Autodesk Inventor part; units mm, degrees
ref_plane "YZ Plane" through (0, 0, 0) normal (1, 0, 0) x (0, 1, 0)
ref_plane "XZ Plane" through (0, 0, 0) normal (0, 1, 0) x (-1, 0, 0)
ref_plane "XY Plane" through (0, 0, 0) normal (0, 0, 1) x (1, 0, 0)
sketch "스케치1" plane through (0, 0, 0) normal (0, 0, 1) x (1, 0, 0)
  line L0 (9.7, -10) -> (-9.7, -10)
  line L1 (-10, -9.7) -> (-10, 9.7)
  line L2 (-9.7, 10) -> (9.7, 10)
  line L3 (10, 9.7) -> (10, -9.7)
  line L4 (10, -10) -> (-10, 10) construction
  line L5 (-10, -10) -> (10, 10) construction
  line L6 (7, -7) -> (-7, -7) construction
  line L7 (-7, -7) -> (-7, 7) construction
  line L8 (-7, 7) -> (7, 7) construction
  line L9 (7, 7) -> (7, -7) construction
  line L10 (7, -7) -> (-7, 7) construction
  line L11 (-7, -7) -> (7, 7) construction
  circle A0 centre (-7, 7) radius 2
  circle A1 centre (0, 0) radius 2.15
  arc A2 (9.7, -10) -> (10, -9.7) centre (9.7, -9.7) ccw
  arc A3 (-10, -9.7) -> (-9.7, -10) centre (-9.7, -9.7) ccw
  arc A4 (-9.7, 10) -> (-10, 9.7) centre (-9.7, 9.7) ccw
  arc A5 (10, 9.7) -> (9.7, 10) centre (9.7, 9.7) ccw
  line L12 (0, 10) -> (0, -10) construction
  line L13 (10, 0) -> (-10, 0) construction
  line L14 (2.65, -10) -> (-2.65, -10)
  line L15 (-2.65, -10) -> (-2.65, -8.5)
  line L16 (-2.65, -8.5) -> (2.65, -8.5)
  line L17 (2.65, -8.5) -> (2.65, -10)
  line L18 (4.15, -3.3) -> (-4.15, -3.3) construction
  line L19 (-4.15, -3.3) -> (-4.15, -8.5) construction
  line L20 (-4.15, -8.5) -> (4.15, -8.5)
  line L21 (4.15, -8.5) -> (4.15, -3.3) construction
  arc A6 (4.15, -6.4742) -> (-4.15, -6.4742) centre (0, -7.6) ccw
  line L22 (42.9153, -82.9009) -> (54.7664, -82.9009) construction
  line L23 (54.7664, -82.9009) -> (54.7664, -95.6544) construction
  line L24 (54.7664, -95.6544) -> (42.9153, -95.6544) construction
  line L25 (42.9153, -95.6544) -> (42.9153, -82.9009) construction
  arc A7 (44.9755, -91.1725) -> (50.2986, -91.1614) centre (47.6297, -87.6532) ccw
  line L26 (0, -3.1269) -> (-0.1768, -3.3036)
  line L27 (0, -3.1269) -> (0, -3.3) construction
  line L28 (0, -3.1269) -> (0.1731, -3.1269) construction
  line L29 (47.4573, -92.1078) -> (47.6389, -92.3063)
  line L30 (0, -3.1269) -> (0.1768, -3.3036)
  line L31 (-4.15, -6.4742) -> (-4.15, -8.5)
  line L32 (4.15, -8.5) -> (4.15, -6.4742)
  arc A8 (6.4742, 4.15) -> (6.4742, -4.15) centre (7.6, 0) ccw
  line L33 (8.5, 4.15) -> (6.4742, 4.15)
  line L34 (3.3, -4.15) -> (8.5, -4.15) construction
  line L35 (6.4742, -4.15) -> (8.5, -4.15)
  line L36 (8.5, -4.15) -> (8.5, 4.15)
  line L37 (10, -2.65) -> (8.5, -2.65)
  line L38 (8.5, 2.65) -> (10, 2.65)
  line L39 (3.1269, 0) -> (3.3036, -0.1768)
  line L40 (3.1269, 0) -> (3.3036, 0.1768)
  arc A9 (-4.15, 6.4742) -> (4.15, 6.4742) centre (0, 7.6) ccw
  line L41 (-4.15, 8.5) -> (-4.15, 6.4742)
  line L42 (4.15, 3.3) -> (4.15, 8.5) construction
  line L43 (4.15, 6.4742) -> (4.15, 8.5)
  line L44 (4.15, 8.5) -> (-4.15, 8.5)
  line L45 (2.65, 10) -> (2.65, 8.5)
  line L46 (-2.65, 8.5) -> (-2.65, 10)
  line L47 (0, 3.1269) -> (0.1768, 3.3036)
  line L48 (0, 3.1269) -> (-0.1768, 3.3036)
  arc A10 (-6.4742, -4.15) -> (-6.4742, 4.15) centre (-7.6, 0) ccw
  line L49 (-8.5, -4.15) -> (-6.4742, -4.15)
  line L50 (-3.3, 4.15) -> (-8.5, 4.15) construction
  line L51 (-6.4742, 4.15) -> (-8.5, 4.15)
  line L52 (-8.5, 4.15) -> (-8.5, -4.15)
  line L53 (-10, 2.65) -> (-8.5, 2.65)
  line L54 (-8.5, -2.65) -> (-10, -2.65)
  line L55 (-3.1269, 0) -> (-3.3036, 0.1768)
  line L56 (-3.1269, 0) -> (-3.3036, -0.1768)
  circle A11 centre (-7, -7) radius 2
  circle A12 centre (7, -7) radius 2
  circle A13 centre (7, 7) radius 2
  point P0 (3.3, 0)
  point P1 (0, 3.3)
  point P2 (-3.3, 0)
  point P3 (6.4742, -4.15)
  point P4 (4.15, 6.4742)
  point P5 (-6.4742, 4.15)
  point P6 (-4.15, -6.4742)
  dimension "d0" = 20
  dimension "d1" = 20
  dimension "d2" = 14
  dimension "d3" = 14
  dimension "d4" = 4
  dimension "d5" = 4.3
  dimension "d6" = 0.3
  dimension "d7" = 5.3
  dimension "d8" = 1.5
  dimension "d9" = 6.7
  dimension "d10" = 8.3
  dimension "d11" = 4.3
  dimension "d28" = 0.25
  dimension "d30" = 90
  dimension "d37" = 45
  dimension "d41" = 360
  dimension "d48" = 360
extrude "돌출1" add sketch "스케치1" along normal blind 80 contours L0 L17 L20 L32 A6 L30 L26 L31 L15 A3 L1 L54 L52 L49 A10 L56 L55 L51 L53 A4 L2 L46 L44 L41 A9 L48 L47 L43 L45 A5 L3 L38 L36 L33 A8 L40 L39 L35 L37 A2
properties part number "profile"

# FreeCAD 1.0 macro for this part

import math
import FreeCAD as App
import Part
import Sketcher
from FreeCAD import Vector
Q = App.Units.Quantity

doc = App.newDocument("Part")
params = doc.addObject("Spreadsheet::Sheet", "Params")
for row, (alias, value) in enumerate([
    ("sketch1_diameter", "4 mm"),
    ("sketch1_diameter2", "4.3 mm"),
    ("sketch1_radius", "0.3 mm"),
    ("sketch1_radius2", "4.3 mm"),
    ("sketch1_width", "1.5 mm"),
    ("pad1_length", "80 mm"),
], start=1):
    params.set(f"A{row}", alias)
    params.set(f"B{row}", "=" + value)
    params.setAlias(f"B{row}", alias)

body = doc.addObject("PartDesign::Body", "Body")

sketch1 = doc.addObject("Sketcher::SketchObject", "Sketch")
body.addObject(sketch1)
sketch1.AttachmentSupport = (doc.XY_Plane, [""])
sketch1.MapMode = "FlatFace"
sketch1.addGeometry([
    Part.LineSegment(Vector(2.65, -10, 0), Vector(9.7, -10, 0)),
    Part.ArcOfCircle(Part.Circle(Vector(9.7, -9.7, 0), Vector(0, 0, 1), 0.3), math.radians(-90), math.radians(0)),
    Part.LineSegment(Vector(10, -9.7, 0), Vector(10, -2.65, 0)),
    Part.LineSegment(Vector(10, -2.65, 0), Vector(8.5, -2.65, 0)),
    Part.LineSegment(Vector(8.5, -2.65, 0), Vector(8.5, -4.15, 0)),
    Part.LineSegment(Vector(8.5, -4.15, 0), Vector(6.47, -4.15, 0)),
    Part.ArcOfCircle(Part.Circle(Vector(7.6, 0, 0), Vector(0, 0, 1), 4.3), math.radians(-178), math.radians(-105)),
    Part.LineSegment(Vector(3.3, -0.18, 0), Vector(3.13, 0, 0)),
    Part.LineSegment(Vector(3.13, 0, 0), Vector(3.3, 0.18, 0)),
    Part.ArcOfCircle(Part.Circle(Vector(7.6, 0, 0), Vector(0, 0, 1), 4.3), math.radians(105), math.radians(178)),
    Part.LineSegment(Vector(6.47, 4.15, 0), Vector(8.5, 4.15, 0)),
    Part.LineSegment(Vector(8.5, 4.15, 0), Vector(8.5, 2.65, 0)),
    Part.LineSegment(Vector(8.5, 2.65, 0), Vector(10, 2.65, 0)),
    Part.LineSegment(Vector(10, 2.65, 0), Vector(10, 9.7, 0)),
    Part.ArcOfCircle(Part.Circle(Vector(9.7, 9.7, 0), Vector(0, 0, 1), 0.3), math.radians(0), math.radians(90)),
    Part.LineSegment(Vector(9.7, 10, 0), Vector(2.65, 10, 0)),
    Part.LineSegment(Vector(2.65, 10, 0), Vector(2.65, 8.5, 0)),
    Part.LineSegment(Vector(2.65, 8.5, 0), Vector(4.15, 8.5, 0)),
    Part.LineSegment(Vector(4.15, 8.5, 0), Vector(4.15, 6.47, 0)),
    Part.ArcOfCircle(Part.Circle(Vector(0, 7.6, 0), Vector(0, 0, 1), 4.3), math.radians(-88), math.radians(-15)),
    Part.LineSegment(Vector(0.18, 3.3, 0), Vector(0, 3.13, 0)),
    Part.LineSegment(Vector(0, 3.13, 0), Vector(-0.18, 3.3, 0)),
    Part.ArcOfCircle(Part.Circle(Vector(0, 7.6, 0), Vector(0, 0, 1), 4.3), math.radians(-165), math.radians(-92)),
    Part.LineSegment(Vector(-4.15, 6.47, 0), Vector(-4.15, 8.5, 0)),
    Part.LineSegment(Vector(-4.15, 8.5, 0), Vector(-2.65, 8.5, 0)),
    Part.LineSegment(Vector(-2.65, 8.5, 0), Vector(-2.65, 10, 0)),
    Part.LineSegment(Vector(-2.65, 10, 0), Vector(-9.7, 10, 0)),
    Part.ArcOfCircle(Part.Circle(Vector(-9.7, 9.7, 0), Vector(0, 0, 1), 0.3), math.radians(90), math.radians(180)),
    Part.LineSegment(Vector(-10, 9.7, 0), Vector(-10, 2.65, 0)),
    Part.LineSegment(Vector(-10, 2.65, 0), Vector(-8.5, 2.65, 0)),
    Part.LineSegment(Vector(-8.5, 2.65, 0), Vector(-8.5, 4.15, 0)),
    Part.LineSegment(Vector(-8.5, 4.15, 0), Vector(-6.47, 4.15, 0)),
    Part.ArcOfCircle(Part.Circle(Vector(-7.6, 0, 0), Vector(0, 0, 1), 4.3), math.radians(2), math.radians(75)),
    Part.LineSegment(Vector(-3.3, 0.18, 0), Vector(-3.13, 0, 0)),
    Part.LineSegment(Vector(-3.13, 0, 0), Vector(-3.3, -0.18, 0)),
    Part.ArcOfCircle(Part.Circle(Vector(-7.6, 0, 0), Vector(0, 0, 1), 4.3), math.radians(-75), math.radians(-2)),
    Part.LineSegment(Vector(-6.47, -4.15, 0), Vector(-8.5, -4.15, 0)),
    Part.LineSegment(Vector(-8.5, -4.15, 0), Vector(-8.5, -2.65, 0)),
    Part.LineSegment(Vector(-8.5, -2.65, 0), Vector(-10, -2.65, 0)),
    Part.LineSegment(Vector(-10, -2.65, 0), Vector(-10, -9.7, 0)),
    Part.ArcOfCircle(Part.Circle(Vector(-9.7, -9.7, 0), Vector(0, 0, 1), 0.3), math.radians(180), math.radians(270)),
    Part.LineSegment(Vector(-9.7, -10, 0), Vector(-2.65, -10, 0)),
    Part.LineSegment(Vector(-2.65, -10, 0), Vector(-2.65, -8.5, 0)),
    Part.LineSegment(Vector(-2.65, -8.5, 0), Vector(-4.15, -8.5, 0)),
    Part.LineSegment(Vector(-4.15, -8.5, 0), Vector(-4.15, -6.47, 0)),
    Part.ArcOfCircle(Part.Circle(Vector(0, -7.6, 0), Vector(0, 0, 1), 4.3), math.radians(92), math.radians(165)),
    Part.LineSegment(Vector(-0.18, -3.3, 0), Vector(0, -3.13, 0)),
    Part.LineSegment(Vector(0, -3.13, 0), Vector(0.18, -3.3, 0)),
    Part.ArcOfCircle(Part.Circle(Vector(0, -7.6, 0), Vector(0, 0, 1), 4.3), math.radians(15), math.radians(88)),
    Part.LineSegment(Vector(4.15, -6.47, 0), Vector(4.15, -8.5, 0)),
    Part.LineSegment(Vector(4.15, -8.5, 0), Vector(2.65, -8.5, 0)),
    Part.LineSegment(Vector(2.65, -8.5, 0), Vector(2.65, -10, 0)),
    Part.Circle(Vector(-7, -7, 0), Vector(0, 0, 1), 2),
    Part.Circle(Vector(7, -7, 0), Vector(0, 0, 1), 2),
    Part.Circle(Vector(-7, 7, 0), Vector(0, 0, 1), 2),
    Part.Circle(Vector(0, 0, 0), Vector(0, 0, 1), 2.15),
    Part.Circle(Vector(7, 7, 0), Vector(0, 0, 1), 2),
], False)
sketch1.addConstraint([
    Sketcher.Constraint("Tangent", 0, 2, 1, 1),
    Sketcher.Constraint("Tangent", 1, 2, 2, 1),
    Sketcher.Constraint("Coincident", 2, 2, 3, 1),
    Sketcher.Constraint("Coincident", 3, 2, 4, 1),
    Sketcher.Constraint("Coincident", 4, 2, 5, 1),
    Sketcher.Constraint("Coincident", 5, 2, 6, 2),
    Sketcher.Constraint("Coincident", 6, 1, 7, 1),
    Sketcher.Constraint("Coincident", 7, 2, 8, 1),
    Sketcher.Constraint("Coincident", 8, 2, 9, 2),
    Sketcher.Constraint("Coincident", 9, 1, 10, 1),
    Sketcher.Constraint("Coincident", 10, 2, 11, 1),
    Sketcher.Constraint("Coincident", 11, 2, 12, 1),
    Sketcher.Constraint("Coincident", 12, 2, 13, 1),
    Sketcher.Constraint("Tangent", 13, 2, 14, 1),
    Sketcher.Constraint("Tangent", 14, 2, 15, 1),
    Sketcher.Constraint("Coincident", 15, 2, 16, 1),
    Sketcher.Constraint("Coincident", 16, 2, 17, 1),
    Sketcher.Constraint("Coincident", 17, 2, 18, 1),
    Sketcher.Constraint("Coincident", 18, 2, 19, 2),
    Sketcher.Constraint("Coincident", 19, 1, 20, 1),
    Sketcher.Constraint("Coincident", 20, 2, 21, 1),
    Sketcher.Constraint("Coincident", 21, 2, 22, 2),
    Sketcher.Constraint("Coincident", 22, 1, 23, 1),
    Sketcher.Constraint("Coincident", 23, 2, 24, 1),
    Sketcher.Constraint("Coincident", 24, 2, 25, 1),
    Sketcher.Constraint("Coincident", 25, 2, 26, 1),
    Sketcher.Constraint("Tangent", 26, 2, 27, 1),
    Sketcher.Constraint("Tangent", 27, 2, 28, 1),
    Sketcher.Constraint("Coincident", 28, 2, 29, 1),
    Sketcher.Constraint("Coincident", 29, 2, 30, 1),
    Sketcher.Constraint("Coincident", 30, 2, 31, 1),
    Sketcher.Constraint("Coincident", 31, 2, 32, 2),
    Sketcher.Constraint("Coincident", 32, 1, 33, 1),
    Sketcher.Constraint("Coincident", 33, 2, 34, 1),
    Sketcher.Constraint("Coincident", 34, 2, 35, 2),
    Sketcher.Constraint("Coincident", 35, 1, 36, 1),
    Sketcher.Constraint("Coincident", 36, 2, 37, 1),
    Sketcher.Constraint("Coincident", 37, 2, 38, 1),
    Sketcher.Constraint("Coincident", 38, 2, 39, 1),
    Sketcher.Constraint("Tangent", 39, 2, 40, 1),
    Sketcher.Constraint("Tangent", 40, 2, 41, 1),
    Sketcher.Constraint("Coincident", 41, 2, 42, 1),
    Sketcher.Constraint("Coincident", 42, 2, 43, 1),
    Sketcher.Constraint("Coincident", 43, 2, 44, 1),
    Sketcher.Constraint("Coincident", 44, 2, 45, 2),
    Sketcher.Constraint("Coincident", 45, 1, 46, 1),
    Sketcher.Constraint("Coincident", 46, 2, 47, 1),
    Sketcher.Constraint("Coincident", 47, 2, 48, 2),
    Sketcher.Constraint("Coincident", 48, 1, 49, 1),
    Sketcher.Constraint("Coincident", 49, 2, 50, 1),
    Sketcher.Constraint("Coincident", 50, 2, 51, 1),
    Sketcher.Constraint("Coincident", 51, 2, 0, 1),
    Sketcher.Constraint("Horizontal", 0),
    Sketcher.Constraint("Vertical", 2),
    Sketcher.Constraint("Horizontal", 3),
    Sketcher.Constraint("Vertical", 4),
    Sketcher.Constraint("Horizontal", 5),
    Sketcher.Constraint("Horizontal", 10),
    Sketcher.Constraint("Vertical", 11),
    Sketcher.Constraint("Horizontal", 12),
    Sketcher.Constraint("Vertical", 13),
    Sketcher.Constraint("Horizontal", 15),
    Sketcher.Constraint("Vertical", 16),
    Sketcher.Constraint("Horizontal", 17),
    Sketcher.Constraint("Vertical", 18),
    Sketcher.Constraint("Vertical", 23),
    Sketcher.Constraint("Horizontal", 24),
    Sketcher.Constraint("Vertical", 25),
    Sketcher.Constraint("Horizontal", 26),
    Sketcher.Constraint("Vertical", 28),
    Sketcher.Constraint("Horizontal", 29),
    Sketcher.Constraint("Vertical", 30),
    Sketcher.Constraint("Horizontal", 31),
    Sketcher.Constraint("Horizontal", 36),
    Sketcher.Constraint("Vertical", 37),
    Sketcher.Constraint("Horizontal", 38),
    Sketcher.Constraint("Vertical", 39),
    Sketcher.Constraint("Horizontal", 41),
    Sketcher.Constraint("Vertical", 42),
    Sketcher.Constraint("Horizontal", 43),
    Sketcher.Constraint("Vertical", 44),
    Sketcher.Constraint("Vertical", 49),
    Sketcher.Constraint("Horizontal", 50),
    Sketcher.Constraint("Vertical", 51),
    Sketcher.Constraint("Coincident", 55, 3, -1, 1),
    Sketcher.Constraint("Coincident", 9, 3, 6, 3),
    Sketcher.Constraint("Coincident", 22, 3, 19, 3),
    Sketcher.Constraint("Coincident", 35, 3, 32, 3),
    Sketcher.Constraint("Coincident", 48, 3, 45, 3),
    Sketcher.Constraint("Equal", 6, 9),
    Sketcher.Constraint("Equal", 1, 14),
    Sketcher.Constraint("Equal", 9, 19),
    Sketcher.Constraint("Equal", 19, 22),
    Sketcher.Constraint("Equal", 14, 27),
    Sketcher.Constraint("Equal", 22, 32),
    Sketcher.Constraint("Equal", 32, 35),
    Sketcher.Constraint("Equal", 27, 40),
    Sketcher.Constraint("Equal", 35, 45),
    Sketcher.Constraint("Equal", 45, 48),
    Sketcher.Constraint("Equal", 52, 53),
    Sketcher.Constraint("Equal", 53, 54),
    Sketcher.Constraint("Equal", 54, 56),
    Sketcher.Constraint("Symmetric", 1, 3, 27, 3, -1, 1),
    Sketcher.Constraint("Symmetric", 6, 3, 32, 3, -1, 1),
    Sketcher.Constraint("Symmetric", 14, 3, 40, 3, -1, 1),
    Sketcher.Constraint("Symmetric", 19, 3, 45, 3, -1, 1),
    Sketcher.Constraint("Symmetric", 53, 3, 54, 3, -1, 1),
    Sketcher.Constraint("Symmetric", 52, 3, 56, 3, -1, 1),
    Sketcher.Constraint("Symmetric", 3, 2, 29, 2, -1, 1),
    Sketcher.Constraint("Symmetric", 7, 2, 33, 2, -1, 1),
    Sketcher.Constraint("Symmetric", 10, 2, 36, 2, -1, 1),
    Sketcher.Constraint("Symmetric", 16, 2, 42, 2, -1, 1),
    Sketcher.Constraint("Symmetric", 20, 2, 46, 2, -1, 1),
    Sketcher.Constraint("Symmetric", 23, 2, 49, 2, -1, 1),
    Sketcher.Constraint("Symmetric", 14, 3, 27, 3, -2),
    Sketcher.Constraint("Symmetric", 52, 3, 53, 3, -2),
    Sketcher.Constraint("Symmetric", 19, 1, 21, 2, -2),
    Sketcher.Constraint("Symmetric", 17, 2, 23, 2, -2),
    Sketcher.Constraint("Symmetric", 11, 2, 29, 2, -2),
    Sketcher.Constraint("Symmetric", 9, 1, 31, 2, -2),
    Sketcher.Constraint("PointOnObject", 7, 2, -1),
    Sketcher.Constraint("PointOnObject", 20, 2, -2),
    Sketcher.Constraint("Perpendicular", 7, 20),
    Sketcher.Constraint("Perpendicular", 8, 21),
    Sketcher.Constraint("Perpendicular", 20, 33),
    Sketcher.Constraint("Perpendicular", 21, 34),
    Sketcher.Constraint("Perpendicular", 33, 46),
    Sketcher.Constraint("Perpendicular", 34, 47),
    Sketcher.Constraint("Horizontal", 5, 2, 35, 1),
    Sketcher.Constraint("Horizontal", 3, 2, 37, 2),
    Sketcher.Constraint("Horizontal", 44, 2, 48, 1),
    Sketcher.Constraint("Vertical", 25, 2, 41, 2),
    Sketcher.Constraint("Vertical", 16, 2, 50, 2),
    Sketcher.Constraint("Equal", 12, 17),
    Sketcher.Constraint("Equal", 41, 2),
    Sketcher.Constraint("Equal", 50, 4),
    Sketcher.Constraint("Equal", 11, 16),
    Sketcher.Constraint("Equal", 36, 18),
    Sketcher.Constraint("Equal", 8, 20),
    Sketcher.Constraint("Diameter", 52, Q("4 mm")),
    Sketcher.Constraint("Diameter", 55, Q("4.3 mm")),
    Sketcher.Constraint("Radius", 1, Q("0.3 mm")),
    Sketcher.Constraint("Radius", 6, Q("4.3 mm")),
    Sketcher.Constraint("DistanceX", 3, 2, 3, 1, Q("1.5 mm")),
    Sketcher.Constraint("Distance", 7, Q("0.25 mm")),
    Sketcher.Constraint("DistanceX", 52, 3, -1, 1, Q("7 mm")),
    Sketcher.Constraint("DistanceY", 52, 3, -1, 1, Q("7 mm")),
    Sketcher.Constraint("DistanceY", 0, 2, -1, 1, Q("10 mm")),
    Sketcher.Constraint("DistanceX", -1, 1, 1, 2, Q("10 mm")),
    Sketcher.Constraint("DistanceX", 0, 1, 0, 2, Q("7.05 mm")),
    Sketcher.Constraint("DistanceX", -1, 1, 6, 3, Q("7.6 mm")),
    Sketcher.Constraint("DistanceX", -1, 1, 7, 2, Q("3.127 mm")),
])
sketch1.setExpression("Constraints[139]", "Params.sketch1_diameter")
sketch1.setExpression("Constraints[140]", "Params.sketch1_diameter2")
sketch1.setExpression("Constraints[141]", "Params.sketch1_radius")
sketch1.setExpression("Constraints[142]", "Params.sketch1_radius2")
sketch1.setExpression("Constraints[143]", "Params.sketch1_width")
pad1 = doc.addObject("PartDesign::Pad", "Pad")
body.addObject(pad1)
pad1.Profile = sketch1
pad1.setExpression("Length", "Params.pad1_length")

doc.recompute()
